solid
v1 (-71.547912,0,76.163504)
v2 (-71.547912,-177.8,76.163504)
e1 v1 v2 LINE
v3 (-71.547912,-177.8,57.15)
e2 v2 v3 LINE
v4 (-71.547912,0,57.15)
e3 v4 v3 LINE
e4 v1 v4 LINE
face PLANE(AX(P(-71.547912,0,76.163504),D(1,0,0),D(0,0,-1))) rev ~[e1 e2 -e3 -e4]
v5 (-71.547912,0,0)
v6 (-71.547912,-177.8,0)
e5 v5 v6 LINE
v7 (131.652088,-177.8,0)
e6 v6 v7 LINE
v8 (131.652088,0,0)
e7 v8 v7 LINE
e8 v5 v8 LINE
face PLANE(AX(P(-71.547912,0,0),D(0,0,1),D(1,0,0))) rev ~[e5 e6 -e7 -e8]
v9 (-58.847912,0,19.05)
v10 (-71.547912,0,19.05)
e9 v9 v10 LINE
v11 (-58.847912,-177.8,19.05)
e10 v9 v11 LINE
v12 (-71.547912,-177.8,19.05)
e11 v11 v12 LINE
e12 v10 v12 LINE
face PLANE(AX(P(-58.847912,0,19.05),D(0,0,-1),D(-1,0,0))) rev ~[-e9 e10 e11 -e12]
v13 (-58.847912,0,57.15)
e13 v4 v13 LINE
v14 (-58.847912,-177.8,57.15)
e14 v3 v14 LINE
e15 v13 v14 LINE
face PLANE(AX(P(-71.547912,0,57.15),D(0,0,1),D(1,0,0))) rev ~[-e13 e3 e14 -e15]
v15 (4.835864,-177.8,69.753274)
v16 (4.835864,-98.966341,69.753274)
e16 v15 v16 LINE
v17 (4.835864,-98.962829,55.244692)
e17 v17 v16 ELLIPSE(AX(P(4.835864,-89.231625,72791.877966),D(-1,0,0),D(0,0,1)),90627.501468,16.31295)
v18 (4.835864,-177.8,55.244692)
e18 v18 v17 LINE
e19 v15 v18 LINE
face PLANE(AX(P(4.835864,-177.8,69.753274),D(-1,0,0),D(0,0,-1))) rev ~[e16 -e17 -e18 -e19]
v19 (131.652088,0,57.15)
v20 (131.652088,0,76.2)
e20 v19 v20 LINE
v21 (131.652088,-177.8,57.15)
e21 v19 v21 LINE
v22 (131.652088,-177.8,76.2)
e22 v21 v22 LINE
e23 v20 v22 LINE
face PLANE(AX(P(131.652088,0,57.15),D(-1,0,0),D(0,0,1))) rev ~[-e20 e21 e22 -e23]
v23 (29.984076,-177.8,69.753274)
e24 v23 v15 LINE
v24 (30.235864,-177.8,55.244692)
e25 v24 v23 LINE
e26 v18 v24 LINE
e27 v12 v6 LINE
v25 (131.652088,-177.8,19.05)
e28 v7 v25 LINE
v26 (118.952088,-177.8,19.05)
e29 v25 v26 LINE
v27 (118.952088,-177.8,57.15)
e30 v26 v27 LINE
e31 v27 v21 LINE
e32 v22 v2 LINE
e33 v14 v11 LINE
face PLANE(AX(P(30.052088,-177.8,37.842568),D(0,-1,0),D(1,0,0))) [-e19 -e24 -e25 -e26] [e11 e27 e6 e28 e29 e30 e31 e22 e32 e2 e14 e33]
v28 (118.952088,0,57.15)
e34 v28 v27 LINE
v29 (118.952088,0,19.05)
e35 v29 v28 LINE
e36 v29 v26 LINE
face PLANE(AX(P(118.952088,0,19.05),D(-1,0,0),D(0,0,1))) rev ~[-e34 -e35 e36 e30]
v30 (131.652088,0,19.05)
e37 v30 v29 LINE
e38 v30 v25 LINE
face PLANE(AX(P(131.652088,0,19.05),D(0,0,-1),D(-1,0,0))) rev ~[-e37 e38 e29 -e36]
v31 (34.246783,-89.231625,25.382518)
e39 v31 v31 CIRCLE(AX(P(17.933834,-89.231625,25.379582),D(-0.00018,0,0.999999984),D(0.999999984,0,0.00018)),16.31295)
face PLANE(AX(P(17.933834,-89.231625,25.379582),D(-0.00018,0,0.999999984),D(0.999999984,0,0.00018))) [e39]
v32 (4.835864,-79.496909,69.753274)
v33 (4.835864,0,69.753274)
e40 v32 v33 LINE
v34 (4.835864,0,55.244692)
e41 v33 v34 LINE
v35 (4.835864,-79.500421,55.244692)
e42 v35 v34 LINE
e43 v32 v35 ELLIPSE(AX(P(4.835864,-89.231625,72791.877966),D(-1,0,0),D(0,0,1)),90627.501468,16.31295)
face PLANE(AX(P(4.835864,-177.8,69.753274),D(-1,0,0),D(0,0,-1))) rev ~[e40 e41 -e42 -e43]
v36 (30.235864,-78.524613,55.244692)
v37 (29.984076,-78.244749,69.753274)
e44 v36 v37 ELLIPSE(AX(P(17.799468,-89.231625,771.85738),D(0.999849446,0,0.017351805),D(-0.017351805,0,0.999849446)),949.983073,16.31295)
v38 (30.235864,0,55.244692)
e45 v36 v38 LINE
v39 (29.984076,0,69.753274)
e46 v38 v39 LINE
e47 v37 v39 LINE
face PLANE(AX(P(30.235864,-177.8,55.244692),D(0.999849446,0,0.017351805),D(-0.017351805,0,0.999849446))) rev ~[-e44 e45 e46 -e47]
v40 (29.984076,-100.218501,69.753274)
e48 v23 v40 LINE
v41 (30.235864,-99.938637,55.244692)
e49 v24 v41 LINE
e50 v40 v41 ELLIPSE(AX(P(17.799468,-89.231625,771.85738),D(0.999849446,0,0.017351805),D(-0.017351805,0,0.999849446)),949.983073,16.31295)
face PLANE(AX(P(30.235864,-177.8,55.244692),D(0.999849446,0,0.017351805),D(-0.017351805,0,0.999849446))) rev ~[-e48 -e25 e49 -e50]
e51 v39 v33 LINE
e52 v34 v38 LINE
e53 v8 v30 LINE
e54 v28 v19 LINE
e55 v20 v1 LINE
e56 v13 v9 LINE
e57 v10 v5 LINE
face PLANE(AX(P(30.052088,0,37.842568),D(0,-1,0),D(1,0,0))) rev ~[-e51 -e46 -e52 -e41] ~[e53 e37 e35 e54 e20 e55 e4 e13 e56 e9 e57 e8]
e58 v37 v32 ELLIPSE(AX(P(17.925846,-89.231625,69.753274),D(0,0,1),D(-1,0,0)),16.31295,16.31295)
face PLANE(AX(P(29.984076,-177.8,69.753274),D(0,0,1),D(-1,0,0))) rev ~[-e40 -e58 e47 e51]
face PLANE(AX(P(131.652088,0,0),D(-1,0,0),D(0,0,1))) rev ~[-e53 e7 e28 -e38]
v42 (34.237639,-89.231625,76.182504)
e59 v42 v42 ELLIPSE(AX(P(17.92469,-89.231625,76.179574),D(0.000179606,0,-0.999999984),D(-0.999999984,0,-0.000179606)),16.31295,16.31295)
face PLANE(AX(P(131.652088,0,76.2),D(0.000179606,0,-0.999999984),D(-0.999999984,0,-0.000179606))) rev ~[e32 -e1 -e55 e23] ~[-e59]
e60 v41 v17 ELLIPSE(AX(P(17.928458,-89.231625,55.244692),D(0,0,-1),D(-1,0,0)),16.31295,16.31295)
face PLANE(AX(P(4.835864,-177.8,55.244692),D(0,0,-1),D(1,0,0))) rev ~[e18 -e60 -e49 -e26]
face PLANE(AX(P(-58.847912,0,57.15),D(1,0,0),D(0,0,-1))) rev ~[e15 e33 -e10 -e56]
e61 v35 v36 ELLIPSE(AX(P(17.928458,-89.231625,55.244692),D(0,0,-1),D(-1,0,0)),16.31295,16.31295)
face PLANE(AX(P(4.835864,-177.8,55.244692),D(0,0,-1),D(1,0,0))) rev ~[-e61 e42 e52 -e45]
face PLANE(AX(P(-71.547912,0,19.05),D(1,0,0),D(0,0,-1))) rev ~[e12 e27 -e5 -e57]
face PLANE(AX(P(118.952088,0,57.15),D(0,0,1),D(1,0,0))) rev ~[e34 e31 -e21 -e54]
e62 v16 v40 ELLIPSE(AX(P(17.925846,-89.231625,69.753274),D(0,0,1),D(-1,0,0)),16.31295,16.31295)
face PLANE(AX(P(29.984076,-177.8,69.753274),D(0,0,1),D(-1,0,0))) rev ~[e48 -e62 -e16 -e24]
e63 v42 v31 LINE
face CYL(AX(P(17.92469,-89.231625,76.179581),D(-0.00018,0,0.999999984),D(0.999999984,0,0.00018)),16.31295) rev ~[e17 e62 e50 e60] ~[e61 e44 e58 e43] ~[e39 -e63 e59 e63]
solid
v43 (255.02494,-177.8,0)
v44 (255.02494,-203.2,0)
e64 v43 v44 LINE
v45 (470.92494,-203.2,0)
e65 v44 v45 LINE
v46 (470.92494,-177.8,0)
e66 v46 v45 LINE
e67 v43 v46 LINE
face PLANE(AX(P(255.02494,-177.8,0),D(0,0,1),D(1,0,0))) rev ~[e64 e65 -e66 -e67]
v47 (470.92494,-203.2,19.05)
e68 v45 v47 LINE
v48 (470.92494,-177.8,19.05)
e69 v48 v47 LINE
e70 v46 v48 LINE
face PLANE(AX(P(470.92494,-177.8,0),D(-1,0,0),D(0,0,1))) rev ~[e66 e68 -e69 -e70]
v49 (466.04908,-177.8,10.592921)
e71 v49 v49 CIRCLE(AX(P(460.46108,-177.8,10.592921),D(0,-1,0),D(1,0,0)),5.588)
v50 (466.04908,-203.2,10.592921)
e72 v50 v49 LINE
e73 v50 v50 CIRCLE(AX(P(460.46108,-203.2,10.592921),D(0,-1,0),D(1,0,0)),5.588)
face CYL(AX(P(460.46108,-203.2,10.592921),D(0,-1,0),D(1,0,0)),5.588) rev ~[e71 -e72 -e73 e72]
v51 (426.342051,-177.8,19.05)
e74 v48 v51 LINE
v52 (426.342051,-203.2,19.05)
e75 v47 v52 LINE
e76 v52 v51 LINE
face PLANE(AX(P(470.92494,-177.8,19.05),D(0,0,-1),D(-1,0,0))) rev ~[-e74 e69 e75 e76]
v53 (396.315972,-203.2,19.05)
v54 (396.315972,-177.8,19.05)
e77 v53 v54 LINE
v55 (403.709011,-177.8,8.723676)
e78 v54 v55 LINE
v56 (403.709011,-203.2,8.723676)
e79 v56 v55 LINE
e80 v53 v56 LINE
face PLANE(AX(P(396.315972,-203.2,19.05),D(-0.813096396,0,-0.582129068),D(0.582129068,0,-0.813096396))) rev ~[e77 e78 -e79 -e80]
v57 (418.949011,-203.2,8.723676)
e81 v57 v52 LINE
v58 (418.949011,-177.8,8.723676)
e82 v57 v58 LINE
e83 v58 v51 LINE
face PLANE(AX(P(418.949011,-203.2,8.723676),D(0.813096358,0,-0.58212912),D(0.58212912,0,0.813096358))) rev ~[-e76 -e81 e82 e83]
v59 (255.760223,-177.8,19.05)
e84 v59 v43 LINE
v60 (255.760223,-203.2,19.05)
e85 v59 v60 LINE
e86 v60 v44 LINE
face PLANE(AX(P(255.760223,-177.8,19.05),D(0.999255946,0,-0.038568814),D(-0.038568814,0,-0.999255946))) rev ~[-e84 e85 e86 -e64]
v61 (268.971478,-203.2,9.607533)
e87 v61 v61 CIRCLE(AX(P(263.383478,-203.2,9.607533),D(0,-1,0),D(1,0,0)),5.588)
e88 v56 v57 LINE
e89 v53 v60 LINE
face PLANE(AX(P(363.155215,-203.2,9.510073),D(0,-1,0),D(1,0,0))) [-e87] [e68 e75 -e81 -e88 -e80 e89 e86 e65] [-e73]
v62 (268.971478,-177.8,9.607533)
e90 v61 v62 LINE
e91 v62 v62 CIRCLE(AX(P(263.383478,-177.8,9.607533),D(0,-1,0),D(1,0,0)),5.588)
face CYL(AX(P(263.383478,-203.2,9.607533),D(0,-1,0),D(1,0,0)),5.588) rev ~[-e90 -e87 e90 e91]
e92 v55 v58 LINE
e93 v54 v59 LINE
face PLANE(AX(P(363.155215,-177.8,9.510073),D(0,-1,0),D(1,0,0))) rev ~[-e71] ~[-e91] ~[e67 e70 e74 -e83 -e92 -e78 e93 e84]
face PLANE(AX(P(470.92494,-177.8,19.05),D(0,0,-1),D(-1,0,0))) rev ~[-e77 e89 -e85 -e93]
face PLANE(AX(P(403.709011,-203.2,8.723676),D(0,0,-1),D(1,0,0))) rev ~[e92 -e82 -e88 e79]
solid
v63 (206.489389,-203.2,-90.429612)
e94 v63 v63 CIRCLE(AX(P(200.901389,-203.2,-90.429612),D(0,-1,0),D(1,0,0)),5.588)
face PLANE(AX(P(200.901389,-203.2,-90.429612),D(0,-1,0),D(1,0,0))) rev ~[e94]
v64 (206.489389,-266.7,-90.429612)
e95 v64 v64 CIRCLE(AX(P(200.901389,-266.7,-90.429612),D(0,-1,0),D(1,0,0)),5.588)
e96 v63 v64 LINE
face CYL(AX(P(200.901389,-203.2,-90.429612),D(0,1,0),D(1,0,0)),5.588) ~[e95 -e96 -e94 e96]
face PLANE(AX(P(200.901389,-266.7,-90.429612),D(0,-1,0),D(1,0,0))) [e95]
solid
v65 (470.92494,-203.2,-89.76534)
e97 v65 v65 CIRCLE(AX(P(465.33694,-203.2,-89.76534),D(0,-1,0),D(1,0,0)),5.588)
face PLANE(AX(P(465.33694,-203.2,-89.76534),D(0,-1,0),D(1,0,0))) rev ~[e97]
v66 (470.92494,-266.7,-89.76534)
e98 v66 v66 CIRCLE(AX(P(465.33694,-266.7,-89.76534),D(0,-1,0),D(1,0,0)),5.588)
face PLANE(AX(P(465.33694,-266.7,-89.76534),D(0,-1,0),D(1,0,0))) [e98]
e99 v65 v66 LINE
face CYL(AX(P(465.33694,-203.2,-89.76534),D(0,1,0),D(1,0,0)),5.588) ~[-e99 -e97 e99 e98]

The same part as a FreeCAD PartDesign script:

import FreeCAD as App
import Part
import Sketcher
Q = App.Units.Quantity

doc = App.newDocument("Part")
params = doc.addObject("Spreadsheet::Sheet", "Params")
for row, (alias, value) in enumerate([
    ("sketch1_width", "8 in"),
    ("sketch1_width2", "0.5 in"),
    ("sketch1_height", "1.5 in"),
    ("pad1_length", "7 in"),
    ("sketch2_width", "1 in"),
    ("pocket1_length", "7 in"),
    ("pocket2_length", "2 in"),
    ("sketch4_width", "8.5 in"),
    ("sketch4_height", "0.75 in"),
    ("pad2_length", "1 in"),
    ("sketch5_width", "0.6 in"),
    ("sketch5_length", "0.5 in"),
    ("pocket3_length", "1 in"),
    ("sketch6_diameter", "0.44 in"),
    ("pocket4_length", "1 in"),
    ("sketch7_diameter", "0.44 in"),
    ("pocket5_length", "1 in"),
    ("sketch8_diameter", "0.44 in"),
    ("pad3_length", "2.5 in"),
    ("sketch9_diameter", "0.44 in"),
    ("pad4_length", "2.5 in"),
], start=1):
    params.set(f"A{row}", alias)
    params.set(f"B{row}", "=" + value)
    params.setAlias(f"B{row}", alias)

body = doc.addObject("PartDesign::Body", "Body")

# Sketch on XZ plane
sketch1 = doc.addObject("Sketcher::SketchObject", "Sketch")
body.addObject(sketch1)
sketch1.AttachmentSupport = (doc.XZ_Plane, [""])
sketch1.MapMode = "FlatFace"
sketch1.addGeometry(Part.LineSegment(App.Vector(-59, 57, 0), App.Vector(-59, 19, 0)), False)
sketch1.addGeometry(Part.LineSegment(App.Vector(-59, 19, 0), App.Vector(-72, 19, 0)), False)
sketch1.addGeometry(Part.LineSegment(App.Vector(-72, 19, 0), App.Vector(-72, 0, 0)), False)
sketch1.addGeometry(Part.LineSegment(App.Vector(-72, 0, 0), App.Vector(132, 0, 0)), False)
sketch1.addGeometry(Part.LineSegment(App.Vector(132, 0, 0), App.Vector(132, 19, 0)), False)
sketch1.addGeometry(Part.LineSegment(App.Vector(132, 19, 0), App.Vector(119, 19, 0)), False)
sketch1.addGeometry(Part.LineSegment(App.Vector(119, 19, 0), App.Vector(119, 57, 0)), False)
sketch1.addGeometry(Part.LineSegment(App.Vector(119, 57, 0), App.Vector(132, 57, 0)), False)
sketch1.addGeometry(Part.LineSegment(App.Vector(132, 57, 0), App.Vector(132, 76, 0)), False)
sketch1.addGeometry(Part.LineSegment(App.Vector(132, 76, 0), App.Vector(-72, 76, 0)), False)
sketch1.addGeometry(Part.LineSegment(App.Vector(-72, 76, 0), App.Vector(-72, 57, 0)), False)
sketch1.addGeometry(Part.LineSegment(App.Vector(-72, 57, 0), App.Vector(-59, 57, 0)), False)
sketch1.addConstraint(Sketcher.Constraint("Coincident", 0, 2, 1, 1))
sketch1.addConstraint(Sketcher.Constraint("Coincident", 1, 2, 2, 1))
sketch1.addConstraint(Sketcher.Constraint("Coincident", 2, 2, 3, 1))
sketch1.addConstraint(Sketcher.Constraint("Coincident", 3, 2, 4, 1))
sketch1.addConstraint(Sketcher.Constraint("Coincident", 4, 2, 5, 1))
sketch1.addConstraint(Sketcher.Constraint("Coincident", 5, 2, 6, 1))
sketch1.addConstraint(Sketcher.Constraint("Coincident", 6, 2, 7, 1))
sketch1.addConstraint(Sketcher.Constraint("Coincident", 7, 2, 8, 1))
sketch1.addConstraint(Sketcher.Constraint("Coincident", 8, 2, 9, 1))
sketch1.addConstraint(Sketcher.Constraint("Coincident", 9, 2, 10, 1))
sketch1.addConstraint(Sketcher.Constraint("Coincident", 10, 2, 11, 1))
sketch1.addConstraint(Sketcher.Constraint("Coincident", 11, 2, 0, 1))
sketch1.addConstraint(Sketcher.Constraint("Vertical", 0))
sketch1.addConstraint(Sketcher.Constraint("Horizontal", 1))
sketch1.addConstraint(Sketcher.Constraint("Vertical", 2))
sketch1.addConstraint(Sketcher.Constraint("Horizontal", 3))
sketch1.addConstraint(Sketcher.Constraint("Vertical", 4))
sketch1.addConstraint(Sketcher.Constraint("Horizontal", 5))
sketch1.addConstraint(Sketcher.Constraint("Vertical", 6))
sketch1.addConstraint(Sketcher.Constraint("Horizontal", 7))
sketch1.addConstraint(Sketcher.Constraint("Vertical", 8))
sketch1.addConstraint(Sketcher.Constraint("Vertical", 10))
sketch1.addConstraint(Sketcher.Constraint("Horizontal", 11))
sketch1.addConstraint(Sketcher.Constraint("PointOnObject", 2, 2, -1))
sketch1.addConstraint(Sketcher.Constraint("Horizontal", 1, 2, 4, 2))
sketch1.addConstraint(Sketcher.Constraint("Horizontal", 7, 2, 10, 2))
sketch1.addConstraint(Sketcher.Constraint("Vertical", 4, 2, 7, 2))
sketch1.addConstraint(Sketcher.Constraint("Vertical", 2, 2, 9, 2))
sketch1.addConstraint(Sketcher.Constraint("Equal", 1, 5))
sketch1.addConstraint(Sketcher.Constraint("Equal", 4, 8))
sketch1.addConstraint(Sketcher.Constraint("DistanceX", 3, 1, 3, 2, Q("8 in")))
sketch1.addConstraint(Sketcher.Constraint("DistanceX", 1, 2, 1, 1, Q("0.5 in")))
sketch1.addConstraint(Sketcher.Constraint("DistanceY", 0, 2, 0, 1, Q("1.5 in")))
sketch1.addConstraint(Sketcher.Constraint("DistanceY", -1, 1, 8, 2, Q("3 in")))
sketch1.addConstraint(Sketcher.Constraint("DistanceY", 10, 2, 10, 1, 19.013504))
sketch1.addConstraint(Sketcher.Constraint("DistanceX", 1, 2, -1, 1, 71.547912))
sketch1.setExpression("Constraints[30]", "Params.sketch1_width")
sketch1.setExpression("Constraints[31]", "Params.sketch1_width2")
sketch1.setExpression("Constraints[32]", "Params.sketch1_height")
pad1 = doc.addObject("PartDesign::Pad", "Pad")
body.addObject(pad1)
pad1.Profile = sketch1
pad1.setExpression("Length", "Params.pad1_length")

# Sketch on XZ plane
sketch2 = doc.addObject("Sketcher::SketchObject", "Sketch001")
body.addObject(sketch2)
sketch2.AttachmentSupport = (doc.XZ_Plane, [""])
sketch2.MapMode = "FlatFace"
sketch2.AttachmentOffset = App.Placement(App.Vector(0, 0, 7 * 25.4), App.Rotation())
sketch2.addGeometry(Part.LineSegment(App.Vector(30, 70, 0), App.Vector(5, 70, 0)), False)
sketch2.addGeometry(Part.LineSegment(App.Vector(5, 70, 0), App.Vector(5, 55, 0)), False)
sketch2.addGeometry(Part.LineSegment(App.Vector(5, 55, 0), App.Vector(30, 55, 0)), False)
sketch2.addGeometry(Part.LineSegment(App.Vector(30, 55, 0), App.Vector(30, 70, 0)), False)
sketch2.addConstraint(Sketcher.Constraint("Coincident", 0, 2, 1, 1))
sketch2.addConstraint(Sketcher.Constraint("Coincident", 1, 2, 2, 1))
sketch2.addConstraint(Sketcher.Constraint("Coincident", 2, 2, 3, 1))
sketch2.addConstraint(Sketcher.Constraint("Coincident", 3, 2, 0, 1))
sketch2.addConstraint(Sketcher.Constraint("Horizontal", 0))
sketch2.addConstraint(Sketcher.Constraint("Vertical", 1))
sketch2.addConstraint(Sketcher.Constraint("Horizontal", 2))
sketch2.addConstraint(Sketcher.Constraint("DistanceX", 2, 1, 2, 2, Q("1 in")))
sketch2.addConstraint(Sketcher.Constraint("DistanceX", 0, 2, 0, 1, 25.148212))
sketch2.addConstraint(Sketcher.Constraint("DistanceY", 1, 2, 1, 1, 14.508582))
sketch2.addConstraint(Sketcher.Constraint("DistanceX", -1, 1, 0, 2, 4.835864))
sketch2.addConstraint(Sketcher.Constraint("DistanceY", -1, 1, 0, 2, 69.753274))
sketch2.setExpression("Constraints[7]", "Params.sketch2_width")
pocket1 = doc.addObject("PartDesign::Pocket", "Pocket")
body.addObject(pocket1)
pocket1.Profile = sketch2
pocket1.setExpression("Length", "Params.pocket1_length")

# Sketch on an angled plane
sketch3 = doc.addObject("Sketcher::SketchObject", "Sketch002")
body.addObject(sketch3)
sketch3.Placement = App.Placement(App.Vector(-0.013682, 0, 76.176352), App.Rotation(App.Vector(0.999999984, 0, 0.00018), App.Vector(0, 1, 0), App.Vector(-0.00018, 0, 0.999999984), "ZXY"))
sketch3.addGeometry(Part.Circle(App.Vector(18, -89, 0), App.Vector(0, 0, 1), 16), False)
sketch3.addConstraint(Sketcher.Constraint("Diameter", 0, 32.6259))
sketch3.addConstraint(Sketcher.Constraint("DistanceX", -1, 1, 0, 3, 17.938372))
sketch3.addConstraint(Sketcher.Constraint("DistanceY", 0, 3, -1, 1, 89.231625))
pocket2 = doc.addObject("PartDesign::Pocket", "Pocket001")
body.addObject(pocket2)
pocket2.Profile = sketch3
pocket2.setExpression("Length", "Params.pocket2_length")
body2 = doc.addObject("PartDesign::Body", "Body001")

# Sketch on XZ plane
sketch4 = doc.addObject("Sketcher::SketchObject", "Sketch003")
body2.addObject(sketch4)
sketch4.AttachmentSupport = (doc.getObject("XZ_Plane001"), [""])
sketch4.MapMode = "FlatFace"
sketch4.AttachmentOffset = App.Placement(App.Vector(0, 0, 7 * 25.4), App.Rotation())
sketch4.addGeometry(Part.LineSegment(App.Vector(256, 19, 0), App.Vector(255, 0, 0)), False)
sketch4.addGeometry(Part.LineSegment(App.Vector(255, 0, 0), App.Vector(471, 0, 0)), False)
sketch4.addGeometry(Part.LineSegment(App.Vector(471, 0, 0), App.Vector(471, 19, 0)), False)
sketch4.addGeometry(Part.LineSegment(App.Vector(471, 19, 0), App.Vector(256, 19, 0)), False)
sketch4.addConstraint(Sketcher.Constraint("Coincident", 0, 2, 1, 1))
sketch4.addConstraint(Sketcher.Constraint("Coincident", 1, 2, 2, 1))
sketch4.addConstraint(Sketcher.Constraint("Coincident", 2, 2, 3, 1))
sketch4.addConstraint(Sketcher.Constraint("Coincident", 3, 2, 0, 1))
sketch4.addConstraint(Sketcher.Constraint("Horizontal", 1))
sketch4.addConstraint(Sketcher.Constraint("Vertical", 2))
sketch4.addConstraint(Sketcher.Constraint("Horizontal", 3))
sketch4.addConstraint(Sketcher.Constraint("PointOnObject", 0, 2, -1))
sketch4.addConstraint(Sketcher.Constraint("DistanceX", 1, 1, 1, 2, Q("8.5 in")))
sketch4.addConstraint(Sketcher.Constraint("DistanceY", 2, 1, 2, 2, Q("0.75 in")))
sketch4.addConstraint(Sketcher.Constraint("DistanceX", -1, 1, 3, 2, Q("10.0693001 in")))
sketch4.addConstraint(Sketcher.Constraint("DistanceX", 3, 2, 3, 1, 215.164717))
sketch4.setExpression("Constraints[8]", "Params.sketch4_width")
sketch4.setExpression("Constraints[9]", "Params.sketch4_height")
pad2 = doc.addObject("PartDesign::Pad", "Pad001")
body2.addObject(pad2)
pad2.Profile = sketch4
pad2.setExpression("Length", "Params.pad2_length")

# Sketch on XZ plane
sketch5 = doc.addObject("Sketcher::SketchObject", "Sketch004")
body2.addObject(sketch5)
sketch5.AttachmentSupport = (doc.getObject("XZ_Plane001"), [""])
sketch5.MapMode = "FlatFace"
sketch5.AttachmentOffset = App.Placement(App.Vector(0, 0, 8 * 25.4), App.Rotation())
sketch5.addGeometry(Part.LineSegment(App.Vector(426, 19, 0), App.Vector(396, 19, 0)), False)
sketch5.addGeometry(Part.LineSegment(App.Vector(396, 19, 0), App.Vector(404, 9, 0)), False)
sketch5.addGeometry(Part.LineSegment(App.Vector(404, 9, 0), App.Vector(419, 9, 0)), False)
sketch5.addGeometry(Part.LineSegment(App.Vector(419, 9, 0), App.Vector(426, 19, 0)), False)
sketch5.addConstraint(Sketcher.Constraint("Coincident", 0, 2, 1, 1))
sketch5.addConstraint(Sketcher.Constraint("Coincident", 1, 2, 2, 1))
sketch5.addConstraint(Sketcher.Constraint("Coincident", 2, 2, 3, 1))
sketch5.addConstraint(Sketcher.Constraint("Coincident", 3, 2, 0, 1))
sketch5.addConstraint(Sketcher.Constraint("Horizontal", 0))
sketch5.addConstraint(Sketcher.Constraint("Horizontal", 2))
sketch5.addConstraint(Sketcher.Constraint("Equal", 1, 3))
sketch5.addConstraint(Sketcher.Constraint("DistanceX", 2, 1, 2, 2, Q("0.6 in")))
sketch5.addConstraint(Sketcher.Constraint("Distance", 1, Q("0.5 in")))
sketch5.addConstraint(Sketcher.Constraint("DistanceY", -1, 1, 0, 2, Q("0.75 in")))
sketch5.addConstraint(Sketcher.Constraint("DistanceX", 0, 2, 0, 1, 30.026079))
sketch5.addConstraint(Sketcher.Constraint("DistanceX", -1, 1, 0, 2, 396.315972))
sketch5.setExpression("Constraints[7]", "Params.sketch5_width")
sketch5.setExpression("Constraints[8]", "Params.sketch5_length")
pocket3 = doc.addObject("PartDesign::Pocket", "Pocket002")
body2.addObject(pocket3)
pocket3.Profile = sketch5
pocket3.setExpression("Length", "Params.pocket3_length")

# Sketch on XZ plane
sketch6 = doc.addObject("Sketcher::SketchObject", "Sketch005")
body2.addObject(sketch6)
sketch6.AttachmentSupport = (doc.getObject("XZ_Plane001"), [""])
sketch6.MapMode = "FlatFace"
sketch6.AttachmentOffset = App.Placement(App.Vector(0, 0, 8 * 25.4), App.Rotation())
sketch6.addGeometry(Part.Circle(App.Vector(263, 10, 0), App.Vector(0, 0, 1), 6), False)
sketch6.addConstraint(Sketcher.Constraint("Diameter", 0, Q("0.44 in")))
sketch6.addConstraint(Sketcher.Constraint("DistanceX", -1, 1, 0, 3, 263.383478))
sketch6.addConstraint(Sketcher.Constraint("DistanceY", -1, 1, 0, 3, 9.607533))
sketch6.setExpression("Constraints[0]", "Params.sketch6_diameter")
pocket4 = doc.addObject("PartDesign::Pocket", "Pocket003")
body2.addObject(pocket4)
pocket4.Profile = sketch6
pocket4.setExpression("Length", "Params.pocket4_length")

# Sketch on XZ plane
sketch7 = doc.addObject("Sketcher::SketchObject", "Sketch006")
body2.addObject(sketch7)
sketch7.AttachmentSupport = (doc.getObject("XZ_Plane001"), [""])
sketch7.MapMode = "FlatFace"
sketch7.AttachmentOffset = App.Placement(App.Vector(0, 0, 8 * 25.4), App.Rotation())
sketch7.addGeometry(Part.Circle(App.Vector(460, 11, 0), App.Vector(0, 0, 1), 6), False)
sketch7.addConstraint(Sketcher.Constraint("Diameter", 0, Q("0.44 in")))
sketch7.addConstraint(Sketcher.Constraint("DistanceX", -1, 1, 0, 3, 460.46108))
sketch7.addConstraint(Sketcher.Constraint("DistanceY", -1, 1, 0, 3, 10.592921))
sketch7.setExpression("Constraints[0]", "Params.sketch7_diameter")
pocket5 = doc.addObject("PartDesign::Pocket", "Pocket004")
body2.addObject(pocket5)
pocket5.Profile = sketch7
pocket5.setExpression("Length", "Params.pocket5_length")
body3 = doc.addObject("PartDesign::Body", "Body002")

# Sketch on XZ plane
sketch8 = doc.addObject("Sketcher::SketchObject", "Sketch007")
body3.addObject(sketch8)
sketch8.AttachmentSupport = (doc.getObject("XZ_Plane002"), [""])
sketch8.MapMode = "FlatFace"
sketch8.AttachmentOffset = App.Placement(App.Vector(0, 0, 8 * 25.4), App.Rotation())
sketch8.addGeometry(Part.Circle(App.Vector(201, -90, 0), App.Vector(0, 0, 1), 6), False)
sketch8.addConstraint(Sketcher.Constraint("Diameter", 0, Q("0.44 in")))
sketch8.addConstraint(Sketcher.Constraint("DistanceX", -1, 1, 0, 3, 200.901389))
sketch8.addConstraint(Sketcher.Constraint("DistanceY", 0, 3, -1, 1, 90.429612))
sketch8.setExpression("Constraints[0]", "Params.sketch8_diameter")
pad3 = doc.addObject("PartDesign::Pad", "Pad002")
body3.addObject(pad3)
pad3.Profile = sketch8
pad3.setExpression("Length", "Params.pad3_length")
body4 = doc.addObject("PartDesign::Body", "Body003")

# Sketch on XZ plane
sketch9 = doc.addObject("Sketcher::SketchObject", "Sketch008")
body4.addObject(sketch9)
sketch9.AttachmentSupport = (doc.getObject("XZ_Plane003"), [""])
sketch9.MapMode = "FlatFace"
sketch9.AttachmentOffset = App.Placement(App.Vector(0, 0, 8 * 25.4), App.Rotation())
sketch9.addGeometry(Part.Circle(App.Vector(465, -90, 0), App.Vector(0, 0, 1), 6), False)
sketch9.addConstraint(Sketcher.Constraint("Diameter", 0, Q("0.44 in")))
sketch9.addConstraint(Sketcher.Constraint("DistanceX", -1, 1, 0, 3, 465.33694))
sketch9.addConstraint(Sketcher.Constraint("DistanceY", 0, 3, -1, 1, 89.76534))
sketch9.setExpression("Constraints[0]", "Params.sketch9_diameter")
pad4 = doc.addObject("PartDesign::Pad", "Pad003")
body4.addObject(pad4)
pad4.Profile = sketch9
pad4.setExpression("Length", "Params.pad4_length")

doc.recompute()
